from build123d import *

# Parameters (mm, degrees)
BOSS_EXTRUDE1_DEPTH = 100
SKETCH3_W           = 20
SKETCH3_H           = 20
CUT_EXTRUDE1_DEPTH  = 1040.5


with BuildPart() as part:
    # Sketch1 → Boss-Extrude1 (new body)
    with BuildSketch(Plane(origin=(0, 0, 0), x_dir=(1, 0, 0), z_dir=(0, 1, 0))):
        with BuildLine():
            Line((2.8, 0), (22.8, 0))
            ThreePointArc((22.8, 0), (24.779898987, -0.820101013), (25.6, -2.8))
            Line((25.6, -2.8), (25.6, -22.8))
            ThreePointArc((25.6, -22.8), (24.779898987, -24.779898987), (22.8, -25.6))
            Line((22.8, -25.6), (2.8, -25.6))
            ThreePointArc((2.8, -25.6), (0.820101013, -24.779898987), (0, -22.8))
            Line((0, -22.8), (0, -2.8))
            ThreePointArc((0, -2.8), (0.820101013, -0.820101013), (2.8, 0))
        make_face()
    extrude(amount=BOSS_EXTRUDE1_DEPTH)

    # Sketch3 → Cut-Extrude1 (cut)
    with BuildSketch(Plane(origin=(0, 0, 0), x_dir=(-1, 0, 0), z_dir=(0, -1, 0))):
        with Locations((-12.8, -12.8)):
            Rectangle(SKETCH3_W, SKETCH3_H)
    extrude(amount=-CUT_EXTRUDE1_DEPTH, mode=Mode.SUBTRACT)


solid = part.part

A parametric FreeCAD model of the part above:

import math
import FreeCAD as App
import Part
import Sketcher
from FreeCAD import Vector


def add_polygon(sketch, points):
    """Adds a closed chain of lines whose ends are joined by coincident constraints."""
    first, n = sketch.GeometryCount, len(points)
    for a, b in zip(points, points[1:] + points[:1]):
        sketch.addGeometry(Part.LineSegment(App.Vector(*a, 0), App.Vector(*b, 0)), False)
    for i in range(n):
        sketch.addConstraint(Sketcher.Constraint("Coincident", first + i, 2, first + (i + 1) % n, 1))

doc = App.newDocument("Part")
params = doc.addObject("Spreadsheet::Sheet", "Params")
for row, (alias, value) in enumerate([
    ("sketch1_radius", "2.8 mm"),
    ("sketch1_width", "20 mm"),
    ("pad1_length", "100 mm"),
    ("sketch2_width", "20 mm"),
    ("pocket1_length", "1040.5 mm"),
], start=1):
    params.set(f"A{row}", alias)
    params.set(f"B{row}", "=" + value)
    params.setAlias(f"B{row}", alias)

body = doc.addObject("PartDesign::Body", "Body")

sketch1 = body.newObject("Sketcher::SketchObject", "Sketch")
sketch1.AttachmentSupport = (doc.getObject("XZ_Plane"), [""])
sketch1.MapMode = "FlatFace"
sketch1.addGeometry([
    Part.LineSegment(Vector(22.8, 0, 0), Vector(2.8, 0, 0)),
    Part.ArcOfCircle(Part.Circle(Vector(2.8, 2.8, 0), Vector(0, 0, 1), 2.8), math.radians(-180), math.radians(-90)),
    Part.LineSegment(Vector(0, 2.8, 0), Vector(0, 22.8, 0)),
    Part.ArcOfCircle(Part.Circle(Vector(2.8, 22.8, 0), Vector(0, 0, 1), 2.8), math.radians(90), math.radians(180)),
    Part.LineSegment(Vector(2.8, 25.6, 0), Vector(22.8, 25.6, 0)),
    Part.ArcOfCircle(Part.Circle(Vector(22.8, 22.8, 0), Vector(0, 0, 1), 2.8), math.radians(0), math.radians(90)),
    Part.LineSegment(Vector(25.6, 22.8, 0), Vector(25.6, 2.8, 0)),
    Part.ArcOfCircle(Part.Circle(Vector(22.8, 2.8, 0), Vector(0, 0, 1), 2.8), math.radians(-90), math.radians(0)),
], False)
sketch1.addConstraint([
    Sketcher.Constraint("Tangent", 0, 2, 1, 2),
    Sketcher.Constraint("Tangent", 1, 1, 2, 1),
    Sketcher.Constraint("Tangent", 2, 2, 3, 2),
    Sketcher.Constraint("Tangent", 3, 1, 4, 1),
    Sketcher.Constraint("Tangent", 4, 2, 5, 2),
    Sketcher.Constraint("Tangent", 5, 1, 6, 1),
    Sketcher.Constraint("Tangent", 6, 2, 7, 2),
    Sketcher.Constraint("Tangent", 7, 1, 0, 1),
    Sketcher.Constraint("Horizontal", 0),
    Sketcher.Constraint("Vertical", 2),
    Sketcher.Constraint("Horizontal", 4),
    Sketcher.Constraint("Vertical", 6),
    Sketcher.Constraint("Equal", 1, 3),
    Sketcher.Constraint("Equal", 3, 5),
    Sketcher.Constraint("Equal", 5, 7),
    Sketcher.Constraint("PointOnObject", 0, 2, -1),
    Sketcher.Constraint("PointOnObject", 1, 1, -2),
    Sketcher.Constraint("Equal", 4, 2),
    Sketcher.Constraint("Radius", 1, 2.8),
    Sketcher.Constraint("DistanceX", 0, 2, 0, 1, 20.0),
])
sketch1.setExpression("Constraints[18]", "Params.sketch1_radius")
sketch1.setExpression("Constraints[19]", "Params.sketch1_width")
pad1 = body.newObject("PartDesign::Pad", "Pad")
pad1.Profile = sketch1
pad1.setExpression("Length", "Params.pad1_length")
pad1.Reversed = True

sketch2 = body.newObject("Sketcher::SketchObject", "Sketch001")
sketch2.AttachmentSupport = (doc.getObject("XZ_Plane"), [""])
sketch2.MapMode = "FlatFace"
add_polygon(sketch2, [(22.8, 2.8), (22.8, 22.8), (2.8, 22.8), (2.8, 2.8)])
sketch2.addConstraint([
    Sketcher.Constraint("Vertical", 0),
    Sketcher.Constraint("Horizontal", 1),
    Sketcher.Constraint("Vertical", 2),
    Sketcher.Constraint("Horizontal", 3),
    Sketcher.Constraint("Equal", 3, 0),
    Sketcher.Constraint("DistanceX", 1, 2, 1, 1, 20.0),
    Sketcher.Constraint("DistanceX", -1, 1, 0, 2, 22.8),
    Sketcher.Constraint("DistanceY", -1, 1, 0, 2, 22.8),
])
sketch2.setExpression("Constraints[9]", "Params.sketch2_width")
pocket1 = body.newObject("PartDesign::Pocket", "Pocket")
pocket1.Profile = sketch2
pocket1.setExpression("Length", "Params.pocket1_length")

doc.recompute()
